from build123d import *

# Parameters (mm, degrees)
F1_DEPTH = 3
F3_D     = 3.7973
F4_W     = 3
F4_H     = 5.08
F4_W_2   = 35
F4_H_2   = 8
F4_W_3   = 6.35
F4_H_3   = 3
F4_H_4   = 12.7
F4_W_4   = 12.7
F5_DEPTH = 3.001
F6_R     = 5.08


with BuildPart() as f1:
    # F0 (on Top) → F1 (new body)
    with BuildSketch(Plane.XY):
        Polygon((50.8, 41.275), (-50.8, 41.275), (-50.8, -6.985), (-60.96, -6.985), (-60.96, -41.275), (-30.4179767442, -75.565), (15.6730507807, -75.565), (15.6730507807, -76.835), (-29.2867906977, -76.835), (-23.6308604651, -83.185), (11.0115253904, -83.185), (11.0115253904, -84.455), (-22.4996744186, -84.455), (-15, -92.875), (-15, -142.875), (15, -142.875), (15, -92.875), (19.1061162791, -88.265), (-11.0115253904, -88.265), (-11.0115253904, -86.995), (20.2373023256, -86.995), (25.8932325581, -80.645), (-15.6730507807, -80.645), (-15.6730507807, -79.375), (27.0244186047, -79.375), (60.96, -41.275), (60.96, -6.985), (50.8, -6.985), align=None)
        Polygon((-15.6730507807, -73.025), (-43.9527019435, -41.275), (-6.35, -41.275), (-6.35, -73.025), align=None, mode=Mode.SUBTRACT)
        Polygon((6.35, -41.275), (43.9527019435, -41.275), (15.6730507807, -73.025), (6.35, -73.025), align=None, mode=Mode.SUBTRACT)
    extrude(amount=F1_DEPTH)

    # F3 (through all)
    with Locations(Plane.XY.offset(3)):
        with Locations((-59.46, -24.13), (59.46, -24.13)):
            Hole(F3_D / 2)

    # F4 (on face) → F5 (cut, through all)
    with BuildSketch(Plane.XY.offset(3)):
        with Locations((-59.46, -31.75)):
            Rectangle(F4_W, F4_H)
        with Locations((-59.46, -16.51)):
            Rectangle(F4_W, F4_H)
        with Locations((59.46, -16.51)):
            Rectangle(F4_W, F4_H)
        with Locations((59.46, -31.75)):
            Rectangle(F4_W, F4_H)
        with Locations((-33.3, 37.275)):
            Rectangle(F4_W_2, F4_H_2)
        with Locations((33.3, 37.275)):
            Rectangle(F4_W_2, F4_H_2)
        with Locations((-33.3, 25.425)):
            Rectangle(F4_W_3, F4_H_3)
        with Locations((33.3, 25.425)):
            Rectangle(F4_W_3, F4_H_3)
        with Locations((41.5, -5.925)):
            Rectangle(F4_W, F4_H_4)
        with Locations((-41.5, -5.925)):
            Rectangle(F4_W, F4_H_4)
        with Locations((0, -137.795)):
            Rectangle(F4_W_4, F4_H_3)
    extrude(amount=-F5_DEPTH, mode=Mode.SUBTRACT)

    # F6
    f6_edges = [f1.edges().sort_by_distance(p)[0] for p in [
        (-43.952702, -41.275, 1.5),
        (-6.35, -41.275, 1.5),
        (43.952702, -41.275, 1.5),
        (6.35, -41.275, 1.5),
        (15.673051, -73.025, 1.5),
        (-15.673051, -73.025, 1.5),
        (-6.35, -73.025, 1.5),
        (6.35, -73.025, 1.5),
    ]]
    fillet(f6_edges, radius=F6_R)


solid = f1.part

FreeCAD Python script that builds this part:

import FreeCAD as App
import Part
import Sketcher
Q = App.Units.Quantity


def edges_at(feature, points):
    """Names of the edges that pass closest to the given points."""
    edges = feature.Shape.Edges
    near = lambda p: min(range(len(edges)), key=lambda i: edges[i].distToShape(Part.Vertex(*p))[0])
    return sorted({f"Edge{near(p) + 1}" for p in points})


def add_polygon(sketch, points):
    """Adds a closed chain of lines whose ends are joined by coincident constraints."""
    first, n = sketch.GeometryCount, len(points)
    for a, b in zip(points, points[1:] + points[:1]):
        sketch.addGeometry(Part.LineSegment(App.Vector(*a, 0), App.Vector(*b, 0)), False)
    for i in range(n):
        sketch.addConstraint(Sketcher.Constraint("Coincident", first + i, 2, first + (i + 1) % n, 1))

doc = App.newDocument("Part")
params = doc.addObject("Spreadsheet::Sheet", "Params")
for row, (alias, value) in enumerate([
    ("sketch1_width", "4 in"),
    ("sketch1_width2", "0.4 in"),
    ("sketch1_height", "1.9 in"),
    ("sketch1_height2", "1.35 in"),
    ("sketch1_height3", "0.05 in"),
    ("pad1_length", "3 mm"),
    ("hole_diameter", "0.1495 in"),
    ("sketch3_width", "0.5 in"),
    ("sketch3_height", "0.2 in"),
    ("sketch3_width2", "0.25 in"),
    ("fillet_radius", "0.2 in"),
], start=1):
    params.set(f"A{row}", alias)
    params.set(f"B{row}", "=" + value)
    params.setAlias(f"B{row}", alias)

body = doc.addObject("PartDesign::Body", "Body")

# Sketch on XY plane
sketch1 = body.newObject("Sketcher::SketchObject", "Sketch")
sketch1.AttachmentSupport = (doc.getObject("XY_Plane"), [""])
sketch1.MapMode = "FlatFace"
add_polygon(sketch1, [(50.8, 41.3), (-50.8, 41.3), (-50.8, -7), (-61, -7), (-61, -41.3), (-30.4, -75.6), (15.7, -75.6), (15.7, -76.8), (-29.3, -76.8), (-23.6, -83.2), (11, -83.2), (11, -84.5), (-22.5, -84.5), (-15, -92.9), (-15, -142.9), (15, -142.9), (15, -92.9), (19.1, -88.3), (-11, -88.3), (-11, -87), (20.2, -87), (25.9, -80.6), (-15.7, -80.6), (-15.7, -79.4), (27, -79.4), (61, -41.3), (61, -7), (50.8, -7)])  # lines 0-27
add_polygon(sketch1, [(-6.3, -73), (-15.7, -73), (-44, -41.3), (-6.3, -41.3)])  # lines 28-31
add_polygon(sketch1, [(6.3, -73), (6.3, -41.3), (44, -41.3), (15.7, -73)])  # lines 32-35
sketch1.addConstraint([
    Sketcher.Constraint("Horizontal", 0),
    Sketcher.Constraint("Vertical", 1),
    Sketcher.Constraint("Horizontal", 2),
    Sketcher.Constraint("Vertical", 3),
    Sketcher.Constraint("Horizontal", 5),
    Sketcher.Constraint("Vertical", 6),
    Sketcher.Constraint("Horizontal", 7),
    Sketcher.Constraint("Horizontal", 9),
    Sketcher.Constraint("Vertical", 10),
    Sketcher.Constraint("Horizontal", 11),
    Sketcher.Constraint("Vertical", 13),
    Sketcher.Constraint("Horizontal", 14),
    Sketcher.Constraint("Vertical", 15),
    Sketcher.Constraint("Horizontal", 17),
    Sketcher.Constraint("Vertical", 18),
    Sketcher.Constraint("Horizontal", 19),
    Sketcher.Constraint("Horizontal", 21),
    Sketcher.Constraint("Vertical", 22),
    Sketcher.Constraint("Horizontal", 23),
    Sketcher.Constraint("Vertical", 25),
    Sketcher.Constraint("Horizontal", 26),
    Sketcher.Constraint("Vertical", 27),
    Sketcher.Constraint("Horizontal", 28),
    Sketcher.Constraint("Horizontal", 30),
    Sketcher.Constraint("Vertical", 31),
    Sketcher.Constraint("Vertical", 32),
    Sketcher.Constraint("Horizontal", 33),
    Sketcher.Constraint("Horizontal", 35),
    Sketcher.Constraint("Symmetric", 12, 2, 15, 2, -2),
    Sketcher.Constraint("Symmetric", 3, 2, 24, 2, -2),
    Sketcher.Constraint("Symmetric", 1, 2, 26, 2, -2),
    Sketcher.Constraint("Symmetric", 30, 2, 32, 2, -2),
    Sketcher.Constraint("Symmetric", 28, 2, 34, 2, -2),
    Sketcher.Constraint("Parallel", 4, 8),
    Sketcher.Constraint("Parallel", 8, 12),
    Sketcher.Constraint("Parallel", 16, 20),
    Sketcher.Constraint("Parallel", 20, 24),
    Sketcher.Constraint("Parallel", 12, 29),
    Sketcher.Constraint("Parallel", 24, 34),
    Sketcher.Constraint("Horizontal", 24, 2, 29, 2),
    Sketcher.Constraint("Vertical", 22, 2, 28, 2),
    Sketcher.Constraint("Vertical", 6, 2, 34, 2),
    Sketcher.Constraint("Equal", 30, 33),
    Sketcher.Constraint("Equal", 6, 10),
    Sketcher.Constraint("Equal", 10, 18),
    Sketcher.Constraint("Equal", 18, 22),
    Sketcher.Constraint("Equal", 8, 20),
    Sketcher.Constraint("DistanceX", 0, 2, 0, 1, Q("4 in")),
    Sketcher.Constraint("DistanceX", 2, 2, 2, 1, Q("0.4 in")),
    Sketcher.Constraint("DistanceY", 1, 2, 1, 1, Q("1.9 in")),
    Sketcher.Constraint("DistanceY", 3, 2, 3, 1, Q("1.35 in")),
    Sketcher.Constraint("DistanceY", 6, 2, 6, 1, Q("0.05 in")),
    Sketcher.Constraint("DistanceY", 31, 2, 31, 1, Q("1.25 in")),
    Sketcher.Constraint("DistanceY", 4, 2, 1, 2, Q("2.7 in")),
    Sketcher.Constraint("DistanceY", 8, 2, 4, 2, Q("0.3 in")),
    Sketcher.Constraint("DistanceY", 13, 2, 11, 2, Q("2.3 in")),
    Sketcher.Constraint("DistanceY", 16, 2, 9, 2, Q("0.2 in")),
    Sketcher.Constraint("DistanceX", 30, 2, 32, 2, Q("0.5 in")),
    Sketcher.Constraint("DistanceY", -1, 1, 0, 2, Q("1.625 in")),
    Sketcher.Constraint("DistanceX", 11, 2, 11, 1, Q("33.5112 mm")),
    Sketcher.Constraint("DistanceX", 14, 1, 14, 2, Q("30 mm")),
    Sketcher.Constraint("DistanceX", 30, 1, 30, 2, Q("37.602702 mm")),
    Sketcher.Constraint("DistanceY", 13, 2, 13, 1, Q("50 mm")),
    Sketcher.Constraint("DistanceX", 7, 2, 7, 1, Q("44.959841 mm")),
    Sketcher.Constraint("DistanceX", 17, 2, 17, 1, Q("30.117642 mm")),
    Sketcher.Constraint("DistanceX", 23, 1, 23, 2, Q("42.697469 mm")),
    Sketcher.Constraint("DistanceX", 19, 1, 19, 2, Q("31.248828 mm")),
])
sketch1.setExpression("Constraints[83]", "Params.sketch1_width")
sketch1.setExpression("Constraints[84]", "Params.sketch1_width2")
sketch1.setExpression("Constraints[85]", "Params.sketch1_height")
sketch1.setExpression("Constraints[86]", "Params.sketch1_height2")
sketch1.setExpression("Constraints[87]", "Params.sketch1_height3")
pad1 = body.newObject("PartDesign::Pad", "Pad")
pad1.Profile = sketch1
pad1.setExpression("Length", "Params.pad1_length")

# Sketch on XY plane
sketch2 = body.newObject("Sketcher::SketchObject", "Sketch001")
sketch2.AttachmentSupport = (doc.getObject("XY_Plane"), [""])
sketch2.MapMode = "FlatFace"
sketch2.AttachmentOffset = App.Placement(App.Vector(0, 0, 3), App.Rotation())
sketch2.addGeometry([
    Part.Circle(App.Vector(-59.5, -24.1, 0), App.Vector(0, 0, 1), 1.9),
    Part.Circle(App.Vector(59.5, -24.1, 0), App.Vector(0, 0, 1), 1.9),
], False)
sketch2.addConstraint([
    Sketcher.Constraint("Equal", 0, 1),
    Sketcher.Constraint("Symmetric", 0, 3, 1, 3, -2),
    Sketcher.Constraint("Diameter", 0, Q("0.1495 in")),
    Sketcher.Constraint("DistanceY", 0, 3, -1, 1, Q("0.95 in")),
    Sketcher.Constraint("DistanceX", 0, 3, -1, 1, Q("59.46 mm")),
])
doc.recompute()
hole = body.newObject("PartDesign::Hole", "Hole")
hole.Profile = sketch2
hole.ThreadType = "None"
hole.setExpression("Diameter", "Params.hole_diameter")
hole.DepthType = "ThroughAll"

# Sketch on XY plane
sketch3 = body.newObject("Sketcher::SketchObject", "Sketch002")
sketch3.AttachmentSupport = (doc.getObject("XY_Plane"), [""])
sketch3.MapMode = "FlatFace"
sketch3.AttachmentOffset = App.Placement(App.Vector(0, 0, 3), App.Rotation())
add_polygon(sketch3, [(-61, -29.2), (-61, -34.3), (-58, -34.3), (-58, -29.2)])  # lines 0-3
add_polygon(sketch3, [(-61, -14), (-61, -19.1), (-58, -19.1), (-58, -14)])  # lines 4-7
add_polygon(sketch3, [(58, -14), (58, -19.1), (61, -19.1), (61, -14)])  # lines 8-11
add_polygon(sketch3, [(58, -29.2), (58, -34.3), (61, -34.3), (61, -29.2)])  # lines 12-15
add_polygon(sketch3, [(-50.8, 41.3), (-50.8, 33.3), (-15.8, 33.3), (-15.8, 41.3)])  # lines 16-19
add_polygon(sketch3, [(15.8, 41.3), (15.8, 33.3), (50.8, 33.3), (50.8, 41.3)])  # lines 20-23
add_polygon(sketch3, [(-36.5, 26.9), (-36.5, 23.9), (-30.1, 23.9), (-30.1, 26.9)])  # lines 24-27
add_polygon(sketch3, [(30.1, 26.9), (30.1, 23.9), (36.5, 23.9), (36.5, 26.9)])  # lines 28-31
add_polygon(sketch3, [(40, 0.4), (40, -12.3), (43, -12.3), (43, 0.4)])  # lines 32-35
add_polygon(sketch3, [(-43, 0.4), (-43, -12.3), (-40, -12.3), (-40, 0.4)])  # lines 36-39
add_polygon(sketch3, [(-6.3, -136.3), (-6.3, -139.3), (6.3, -139.3), (6.3, -136.3)])  # lines 40-43
sketch3.addConstraint([
    Sketcher.Constraint("Vertical", 0),
    Sketcher.Constraint("Horizontal", 1),
    Sketcher.Constraint("Vertical", 2),
    Sketcher.Constraint("Horizontal", 3),
    Sketcher.Constraint("Vertical", 4),
    Sketcher.Constraint("Horizontal", 5),
    Sketcher.Constraint("Vertical", 6),
    Sketcher.Constraint("Horizontal", 7),
    Sketcher.Constraint("Vertical", 8),
    Sketcher.Constraint("Horizontal", 9),
    Sketcher.Constraint("Vertical", 10),
    Sketcher.Constraint("Horizontal", 11),
    Sketcher.Constraint("Vertical", 12),
    Sketcher.Constraint("Horizontal", 13),
    Sketcher.Constraint("Vertical", 14),
    Sketcher.Constraint("Horizontal", 15),
    Sketcher.Constraint("Vertical", 16),
    Sketcher.Constraint("Horizontal", 17),
    Sketcher.Constraint("Vertical", 18),
    Sketcher.Constraint("Horizontal", 19),
    Sketcher.Constraint("Vertical", 20),
    Sketcher.Constraint("Horizontal", 21),
    Sketcher.Constraint("Vertical", 22),
    Sketcher.Constraint("Horizontal", 23),
    Sketcher.Constraint("Vertical", 24),
    Sketcher.Constraint("Horizontal", 25),
    Sketcher.Constraint("Vertical", 26),
    Sketcher.Constraint("Horizontal", 27),
    Sketcher.Constraint("Vertical", 28),
    Sketcher.Constraint("Horizontal", 29),
    Sketcher.Constraint("Vertical", 30),
    Sketcher.Constraint("Horizontal", 31),
    Sketcher.Constraint("Vertical", 32),
    Sketcher.Constraint("Horizontal", 33),
    Sketcher.Constraint("Vertical", 34),
    Sketcher.Constraint("Horizontal", 35),
    Sketcher.Constraint("Vertical", 36),
    Sketcher.Constraint("Horizontal", 37),
    Sketcher.Constraint("Vertical", 38),
    Sketcher.Constraint("Horizontal", 39),
    Sketcher.Constraint("Vertical", 40),
    Sketcher.Constraint("Horizontal", 41),
    Sketcher.Constraint("Vertical", 42),
    Sketcher.Constraint("Horizontal", 43),
    Sketcher.Constraint("Symmetric", 5, 2, 8, 2, -2),
    Sketcher.Constraint("Symmetric", 7, 2, 10, 2, -2),
    Sketcher.Constraint("Symmetric", 1, 2, 12, 2, -2),
    Sketcher.Constraint("Symmetric", 3, 2, 14, 2, -2),
    Sketcher.Constraint("Symmetric", 17, 2, 20, 2, -2),
    Sketcher.Constraint("Symmetric", 19, 2, 22, 2, -2),
    Sketcher.Constraint("Symmetric", 25, 2, 28, 2, -2),
    Sketcher.Constraint("Symmetric", 27, 2, 30, 2, -2),
    Sketcher.Constraint("Symmetric", 33, 2, 36, 2, -2),
    Sketcher.Constraint("Symmetric", 35, 2, 38, 2, -2),
    Sketcher.Constraint("Vertical", 3, 2, 4, 2),
    Sketcher.Constraint("Vertical", 2, 2, 5, 2),
    Sketcher.Constraint("Equal", 15, 33),
    Sketcher.Constraint("Equal", 2, 4),
    Sketcher.Constraint("Equal", 39, 24),
    Sketcher.Constraint("Equal", 43, 32),
    Sketcher.Constraint("Equal", 30, 40),
    Sketcher.Constraint("DistanceX", 41, 1, 41, 2, Q("0.5 in")),
    Sketcher.Constraint("DistanceY", 0, 2, 0, 1, Q("0.2 in")),
    Sketcher.Constraint("DistanceX", 16, 2, -1, 1, Q("2 in")),
    Sketcher.Constraint("DistanceX", 25, 1, 25, 2, Q("0.25 in")),
    Sketcher.Constraint("DistanceX", 0, 2, -1, 1, Q("2.4 in")),
    Sketcher.Constraint("DistanceY", 3, 2, 4, 2, Q("0.4 in")),
    Sketcher.Constraint("DistanceY", 0, 2, -1, 1, Q("1.35 in")),
    Sketcher.Constraint("DistanceX", 40, 2, -1, 1, Q("0.25 in")),
    Sketcher.Constraint("DistanceY", 26, 2, 17, 2, Q("0.25 in")),
    Sketcher.Constraint("DistanceY", -1, 1, 18, 2, Q("1.625 in")),
    Sketcher.Constraint("DistanceX", 1, 1, 1, 2, Q("3 mm")),
    Sketcher.Constraint("DistanceX", 17, 1, 17, 2, Q("35 mm")),
    Sketcher.Constraint("DistanceY", 16, 2, 16, 1, Q("8 mm")),
    Sketcher.Constraint("DistanceX", 24, 2, -1, 1, Q("36.475 mm")),
    Sketcher.Constraint("DistanceX", -1, 1, 32, 2, Q("40 mm")),
    Sketcher.Constraint("DistanceY", 32, 2, -1, 1, Q("12.275 mm")),
    Sketcher.Constraint("DistanceY", 40, 2, -1, 1, Q("139.295 mm")),
])
sketch3.setExpression("Constraints[105]", "Params.sketch3_width")
sketch3.setExpression("Constraints[106]", "Params.sketch3_height")
sketch3.setExpression("Constraints[108]", "Params.sketch3_width2")
pocket1 = body.newObject("PartDesign::Pocket", "Pocket")
pocket1.Profile = sketch3
pocket1.Type = "ThroughAll"
doc.recompute()

fillet = body.newObject("PartDesign::Fillet", "Fillet")
fillet.Base = (pocket1, edges_at(pocket1, [
    (-43.953, -41.275, 1.5),
    (-6.35, -41.275, 1.5),
    (43.953, -41.275, 1.5),
    (6.35, -41.275, 1.5),
    (15.673, -73.025, 1.5),
    (-15.673, -73.025, 1.5),
    (-6.35, -73.025, 1.5),
    (6.35, -73.025, 1.5),
]))
fillet.setExpression("Radius", "Params.fillet_radius")

doc.recompute()
